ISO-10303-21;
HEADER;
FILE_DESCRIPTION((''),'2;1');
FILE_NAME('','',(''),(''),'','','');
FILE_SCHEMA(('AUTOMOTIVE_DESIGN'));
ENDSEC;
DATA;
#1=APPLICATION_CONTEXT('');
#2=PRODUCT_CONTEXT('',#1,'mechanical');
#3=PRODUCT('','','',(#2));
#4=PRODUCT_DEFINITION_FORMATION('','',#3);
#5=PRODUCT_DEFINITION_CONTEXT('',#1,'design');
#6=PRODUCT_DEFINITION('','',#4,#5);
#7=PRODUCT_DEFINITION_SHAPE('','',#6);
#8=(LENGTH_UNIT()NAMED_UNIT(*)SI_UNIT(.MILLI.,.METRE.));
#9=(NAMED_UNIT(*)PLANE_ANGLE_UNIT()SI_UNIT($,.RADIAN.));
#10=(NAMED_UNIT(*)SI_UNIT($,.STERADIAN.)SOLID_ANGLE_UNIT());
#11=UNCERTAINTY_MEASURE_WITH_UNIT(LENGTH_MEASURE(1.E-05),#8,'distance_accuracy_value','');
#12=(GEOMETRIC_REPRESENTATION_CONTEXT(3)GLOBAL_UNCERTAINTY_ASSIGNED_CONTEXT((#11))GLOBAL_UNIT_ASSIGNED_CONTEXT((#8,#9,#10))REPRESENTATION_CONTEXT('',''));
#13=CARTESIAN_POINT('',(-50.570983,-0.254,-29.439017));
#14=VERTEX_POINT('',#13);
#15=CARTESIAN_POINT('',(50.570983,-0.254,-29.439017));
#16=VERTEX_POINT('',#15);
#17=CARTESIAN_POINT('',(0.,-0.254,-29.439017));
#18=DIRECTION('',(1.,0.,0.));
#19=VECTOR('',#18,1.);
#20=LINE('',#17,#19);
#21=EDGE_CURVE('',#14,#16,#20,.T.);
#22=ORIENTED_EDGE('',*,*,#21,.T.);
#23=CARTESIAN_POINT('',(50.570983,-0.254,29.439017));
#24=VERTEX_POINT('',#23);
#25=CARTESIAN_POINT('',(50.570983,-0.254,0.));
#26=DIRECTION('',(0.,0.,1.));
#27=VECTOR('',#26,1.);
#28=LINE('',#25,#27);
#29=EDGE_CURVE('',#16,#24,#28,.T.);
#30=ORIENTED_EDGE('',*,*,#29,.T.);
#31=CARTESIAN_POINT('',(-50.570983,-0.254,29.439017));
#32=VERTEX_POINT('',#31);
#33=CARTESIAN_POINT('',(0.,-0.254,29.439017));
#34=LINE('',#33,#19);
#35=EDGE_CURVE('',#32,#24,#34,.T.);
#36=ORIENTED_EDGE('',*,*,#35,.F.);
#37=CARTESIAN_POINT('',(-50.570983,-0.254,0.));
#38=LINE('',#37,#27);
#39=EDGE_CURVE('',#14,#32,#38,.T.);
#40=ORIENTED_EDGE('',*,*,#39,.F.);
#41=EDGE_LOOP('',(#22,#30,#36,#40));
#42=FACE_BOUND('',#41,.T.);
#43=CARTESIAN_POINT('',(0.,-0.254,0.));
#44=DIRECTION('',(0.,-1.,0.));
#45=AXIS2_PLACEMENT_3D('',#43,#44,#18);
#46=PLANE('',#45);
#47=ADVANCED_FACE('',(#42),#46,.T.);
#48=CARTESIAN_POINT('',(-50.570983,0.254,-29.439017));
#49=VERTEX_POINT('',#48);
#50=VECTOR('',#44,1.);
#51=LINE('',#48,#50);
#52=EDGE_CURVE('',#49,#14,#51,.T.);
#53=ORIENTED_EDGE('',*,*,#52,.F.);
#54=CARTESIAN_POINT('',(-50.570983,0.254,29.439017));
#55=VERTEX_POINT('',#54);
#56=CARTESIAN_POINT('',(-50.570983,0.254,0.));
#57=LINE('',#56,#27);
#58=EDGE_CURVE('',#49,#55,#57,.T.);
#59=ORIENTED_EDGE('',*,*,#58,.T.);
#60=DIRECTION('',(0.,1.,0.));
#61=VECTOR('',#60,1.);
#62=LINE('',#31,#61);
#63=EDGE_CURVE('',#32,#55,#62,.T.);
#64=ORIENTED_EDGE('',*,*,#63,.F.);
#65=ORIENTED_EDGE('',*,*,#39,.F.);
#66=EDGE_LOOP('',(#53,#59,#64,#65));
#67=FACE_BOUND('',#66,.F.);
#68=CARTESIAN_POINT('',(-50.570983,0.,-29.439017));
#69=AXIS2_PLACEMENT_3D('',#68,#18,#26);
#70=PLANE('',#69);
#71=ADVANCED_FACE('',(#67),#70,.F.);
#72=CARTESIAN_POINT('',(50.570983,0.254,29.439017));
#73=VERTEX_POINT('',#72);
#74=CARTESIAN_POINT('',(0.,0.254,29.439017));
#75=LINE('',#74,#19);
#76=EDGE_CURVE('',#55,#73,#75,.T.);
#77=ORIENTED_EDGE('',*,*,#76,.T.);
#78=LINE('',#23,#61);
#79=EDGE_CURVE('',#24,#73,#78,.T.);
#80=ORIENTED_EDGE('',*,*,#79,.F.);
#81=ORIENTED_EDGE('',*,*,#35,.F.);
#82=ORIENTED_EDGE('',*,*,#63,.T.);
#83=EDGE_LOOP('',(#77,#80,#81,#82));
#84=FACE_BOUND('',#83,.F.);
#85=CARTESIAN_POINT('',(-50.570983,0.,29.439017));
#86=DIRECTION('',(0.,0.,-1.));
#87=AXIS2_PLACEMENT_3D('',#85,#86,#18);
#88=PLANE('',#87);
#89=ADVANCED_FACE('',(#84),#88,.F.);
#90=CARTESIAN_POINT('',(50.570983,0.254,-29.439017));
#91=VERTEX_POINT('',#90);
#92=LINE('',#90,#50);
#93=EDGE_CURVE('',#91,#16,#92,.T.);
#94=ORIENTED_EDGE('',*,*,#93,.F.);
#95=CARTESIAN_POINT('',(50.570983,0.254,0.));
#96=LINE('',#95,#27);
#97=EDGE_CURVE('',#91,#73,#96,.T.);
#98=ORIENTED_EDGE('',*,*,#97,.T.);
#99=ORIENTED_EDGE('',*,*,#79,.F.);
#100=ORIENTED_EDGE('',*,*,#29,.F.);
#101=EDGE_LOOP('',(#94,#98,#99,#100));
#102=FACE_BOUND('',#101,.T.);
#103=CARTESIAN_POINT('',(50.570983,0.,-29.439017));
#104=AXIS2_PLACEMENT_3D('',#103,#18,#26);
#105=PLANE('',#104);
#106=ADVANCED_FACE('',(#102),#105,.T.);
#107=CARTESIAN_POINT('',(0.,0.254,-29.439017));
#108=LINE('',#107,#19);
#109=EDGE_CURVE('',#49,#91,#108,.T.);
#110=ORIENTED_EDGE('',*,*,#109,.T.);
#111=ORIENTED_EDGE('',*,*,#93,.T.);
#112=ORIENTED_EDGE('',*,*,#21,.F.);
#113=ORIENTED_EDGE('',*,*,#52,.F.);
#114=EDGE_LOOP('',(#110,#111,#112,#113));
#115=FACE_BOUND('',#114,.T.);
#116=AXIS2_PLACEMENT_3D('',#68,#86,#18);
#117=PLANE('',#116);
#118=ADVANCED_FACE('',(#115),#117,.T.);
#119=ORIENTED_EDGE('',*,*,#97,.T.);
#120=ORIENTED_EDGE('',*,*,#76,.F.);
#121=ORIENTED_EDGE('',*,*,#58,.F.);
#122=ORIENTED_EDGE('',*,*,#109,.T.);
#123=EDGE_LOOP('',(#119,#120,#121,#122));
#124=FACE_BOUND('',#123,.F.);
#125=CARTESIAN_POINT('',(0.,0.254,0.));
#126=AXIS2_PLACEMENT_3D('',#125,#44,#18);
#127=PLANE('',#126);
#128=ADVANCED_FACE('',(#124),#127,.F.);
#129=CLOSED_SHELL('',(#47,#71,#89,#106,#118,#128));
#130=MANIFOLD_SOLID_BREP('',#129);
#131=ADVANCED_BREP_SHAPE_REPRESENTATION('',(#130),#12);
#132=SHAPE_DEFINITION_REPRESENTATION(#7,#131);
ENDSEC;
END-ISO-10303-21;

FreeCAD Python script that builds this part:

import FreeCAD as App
import Part
import Sketcher
Q = App.Units.Quantity


def add_polygon(sketch, points):
    """Adds a closed chain of lines whose ends are joined by coincident constraints."""
    first, n = sketch.GeometryCount, len(points)
    for a, b in zip(points, points[1:] + points[:1]):
        sketch.addGeometry(Part.LineSegment(App.Vector(*a, 0), App.Vector(*b, 0)), False)
    for i in range(n):
        sketch.addConstraint(Sketcher.Constraint("Coincident", first + i, 2, first + (i + 1) % n, 1))

doc = App.newDocument("Part")
body = doc.addObject("PartDesign::Body", "Body")

# Sketch on XZ plane
sketch1 = body.newObject("Sketcher::SketchObject", "Sketch")
sketch1.AttachmentSupport = (doc.getObject("XZ_Plane"), [""])
sketch1.MapMode = "FlatFace"
add_polygon(sketch1, [(-50.570983, 29.439017), (-50.570983, -29.439017), (50.570983, -29.439017), (50.570983, 29.439017)])  # lines 0-3
sketch1.addConstraint([
    Sketcher.Constraint("Vertical", 0),
    Sketcher.Constraint("Horizontal", 1),
    Sketcher.Constraint("Vertical", 2),
    Sketcher.Constraint("Horizontal", 3),
    Sketcher.Constraint("Symmetric", 0, 2, 2, 2, -1, 1),
    Sketcher.Constraint("DistanceX", 1, 1, 1, 2, 101.141966),
    Sketcher.Constraint("DistanceY", 0, 2, 0, 1, 58.878034),
])
pad1 = body.newObject("PartDesign::Pad", "Pad")
pad1.Profile = sketch1
pad1.Length = Q("0.01 in")

# Sketch on XZ plane
sketch2 = body.newObject("Sketcher::SketchObject", "Sketch001")
sketch2.AttachmentSupport = (doc.getObject("XZ_Plane"), [""])
sketch2.MapMode = "FlatFace"
add_polygon(sketch2, [(-50.570983, 29.439017), (-50.570983, -29.439017), (50.570983, -29.439017), (50.570983, 29.439017)])  # lines 0-3
sketch2.addConstraint([
    Sketcher.Constraint("Vertical", 0),
    Sketcher.Constraint("Horizontal", 1),
    Sketcher.Constraint("Vertical", 2),
    Sketcher.Constraint("Horizontal", 3),
    Sketcher.Constraint("Symmetric", 0, 2, 2, 2, -1, 1),
    Sketcher.Constraint("DistanceX", 1, 1, 1, 2, 101.141966),
    Sketcher.Constraint("DistanceY", 0, 2, 0, 1, 58.878034),
])
pad2 = body.newObject("PartDesign::Pad", "Pad001")
pad2.Profile = sketch2
pad2.Length = Q("0.01 in")
pad2.Reversed = True

doc.recompute()
